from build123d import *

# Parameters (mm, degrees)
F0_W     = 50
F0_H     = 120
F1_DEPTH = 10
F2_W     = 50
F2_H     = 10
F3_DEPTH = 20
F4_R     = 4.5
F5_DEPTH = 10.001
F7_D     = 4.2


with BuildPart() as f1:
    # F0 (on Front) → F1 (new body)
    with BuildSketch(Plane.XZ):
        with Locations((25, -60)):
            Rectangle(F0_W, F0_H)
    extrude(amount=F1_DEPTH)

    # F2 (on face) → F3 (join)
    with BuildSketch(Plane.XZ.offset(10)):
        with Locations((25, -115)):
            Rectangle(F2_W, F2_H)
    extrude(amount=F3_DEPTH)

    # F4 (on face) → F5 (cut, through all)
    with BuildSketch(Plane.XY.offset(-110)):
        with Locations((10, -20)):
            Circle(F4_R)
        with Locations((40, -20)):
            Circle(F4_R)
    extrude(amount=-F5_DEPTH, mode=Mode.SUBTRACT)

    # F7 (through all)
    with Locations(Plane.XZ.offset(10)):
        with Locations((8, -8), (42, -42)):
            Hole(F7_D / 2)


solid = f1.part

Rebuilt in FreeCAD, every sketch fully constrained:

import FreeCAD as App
import Part
import Sketcher


def add_polygon(sketch, points):
    """Adds a closed chain of lines whose ends are joined by coincident constraints."""
    first, n = sketch.GeometryCount, len(points)
    for a, b in zip(points, points[1:] + points[:1]):
        sketch.addGeometry(Part.LineSegment(App.Vector(*a, 0), App.Vector(*b, 0)), False)
    for i in range(n):
        sketch.addConstraint(Sketcher.Constraint("Coincident", first + i, 2, first + (i + 1) % n, 1))

doc = App.newDocument("Part")
body = doc.addObject("PartDesign::Body", "Body")

sketch1 = doc.addObject("Sketcher::SketchObject", "Sketch")
body.addObject(sketch1)
sketch1.AttachmentSupport = (doc.XZ_Plane, [""])
sketch1.MapMode = "FlatFace"
add_polygon(sketch1, [(0, 0), (0, -120), (50, -120), (50, 0)])
sketch1.addConstraint([
    Sketcher.Constraint("Vertical", 0),
    Sketcher.Constraint("Horizontal", 1),
    Sketcher.Constraint("Vertical", 2),
    Sketcher.Constraint("Horizontal", 3),
    Sketcher.Constraint("Coincident", 3, 2, -1, 1),
    Sketcher.Constraint("DistanceX", 1, 1, 1, 2, 50.0),
    Sketcher.Constraint("DistanceY", 0, 2, 0, 1, 120.0),
])
pad1 = doc.addObject("PartDesign::Pad", "Pad")
body.addObject(pad1)
pad1.Profile = sketch1
pad1.Length = 10

sketch2 = doc.addObject("Sketcher::SketchObject", "Sketch001")
body.addObject(sketch2)
sketch2.AttachmentSupport = (doc.XZ_Plane, [""])
sketch2.MapMode = "FlatFace"
sketch2.AttachmentOffset = App.Placement(App.Vector(0, 0, 10), App.Rotation())
add_polygon(sketch2, [(0, -110), (0, -120), (50, -120), (50, -110)])
sketch2.addConstraint([
    Sketcher.Constraint("Vertical", 0),
    Sketcher.Constraint("Horizontal", 1),
    Sketcher.Constraint("Vertical", 2),
    Sketcher.Constraint("Horizontal", 3),
    Sketcher.Constraint("PointOnObject", 0, 2, -2),
    Sketcher.Constraint("DistanceX", 1, 1, 1, 2, 50.0),
    Sketcher.Constraint("DistanceY", 0, 2, 0, 1, 10.0),
    Sketcher.Constraint("DistanceY", 0, 2, -1, 1, 120.0),
])
pad2 = doc.addObject("PartDesign::Pad", "Pad001")
body.addObject(pad2)
pad2.Profile = sketch2
pad2.Length = 20

sketch3 = doc.addObject("Sketcher::SketchObject", "Sketch002")
body.addObject(sketch3)
sketch3.AttachmentSupport = (doc.XY_Plane, [""])
sketch3.MapMode = "FlatFace"
sketch3.AttachmentOffset = App.Placement(App.Vector(0, 0, -110), App.Rotation())
sketch3.addGeometry([
    Part.Circle(App.Vector(10, -20, 0), App.Vector(0, 0, 1), 4.5),
    Part.Circle(App.Vector(40, -20, 0), App.Vector(0, 0, 1), 4.5),
], False)
sketch3.addConstraint([
    Sketcher.Constraint("Equal", 0, 1),
    Sketcher.Constraint("Horizontal", 0, 3, 1, 3),
    Sketcher.Constraint("Diameter", 0, 9.0),
    Sketcher.Constraint("DistanceX", -1, 1, 0, 3, 10.0),
    Sketcher.Constraint("DistanceY", 0, 3, -1, 1, 20.0),
    Sketcher.Constraint("DistanceX", -1, 1, 1, 3, 40.0),
])
pocket1 = doc.addObject("PartDesign::Pocket", "Pocket")
body.addObject(pocket1)
pocket1.Profile = sketch3
pocket1.Type = "ThroughAll"

sketch4 = doc.addObject("Sketcher::SketchObject", "Sketch003")
body.addObject(sketch4)
sketch4.AttachmentSupport = (doc.XZ_Plane, [""])
sketch4.MapMode = "FlatFace"
sketch4.AttachmentOffset = App.Placement(App.Vector(0, 0, 10), App.Rotation())
sketch4.addGeometry([
    Part.Circle(App.Vector(8, -8, 0), App.Vector(0, 0, 1), 2.1),
    Part.Circle(App.Vector(42, -42, 0), App.Vector(0, 0, 1), 2.1),
], False)
sketch4.addConstraint([
    Sketcher.Constraint("Equal", 0, 1),
    Sketcher.Constraint("Diameter", 0, 4.2),
    Sketcher.Constraint("DistanceX", -1, 1, 0, 3, 8.0),
    Sketcher.Constraint("DistanceY", 0, 3, -1, 1, 8.0),
    Sketcher.Constraint("DistanceX", -1, 1, 1, 3, 42.0),
    Sketcher.Constraint("DistanceY", 1, 3, -1, 1, 42.0),
])
doc.recompute()
hole = doc.addObject("PartDesign::Hole", "Hole")
body.addObject(hole)
hole.Profile = sketch4
hole.ThreadType = "None"
hole.Diameter = 4.2
hole.DepthType = "ThroughAll"

doc.recompute()
